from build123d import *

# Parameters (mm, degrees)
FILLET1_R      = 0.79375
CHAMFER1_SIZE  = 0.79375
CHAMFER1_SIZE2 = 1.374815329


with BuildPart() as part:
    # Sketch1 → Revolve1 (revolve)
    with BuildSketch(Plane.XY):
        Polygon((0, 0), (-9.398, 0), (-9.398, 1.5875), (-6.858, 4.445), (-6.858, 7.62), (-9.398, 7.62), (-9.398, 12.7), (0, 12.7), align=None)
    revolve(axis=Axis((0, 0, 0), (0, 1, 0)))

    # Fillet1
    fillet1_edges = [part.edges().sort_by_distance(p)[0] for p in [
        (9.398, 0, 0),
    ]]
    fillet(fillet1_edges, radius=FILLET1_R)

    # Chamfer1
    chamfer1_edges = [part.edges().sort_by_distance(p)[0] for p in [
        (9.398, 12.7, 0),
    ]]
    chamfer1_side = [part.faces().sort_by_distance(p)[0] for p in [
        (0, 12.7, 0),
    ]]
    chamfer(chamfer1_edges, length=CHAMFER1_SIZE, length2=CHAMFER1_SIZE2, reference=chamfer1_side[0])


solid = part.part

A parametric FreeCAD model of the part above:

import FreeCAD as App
import Part
import Sketcher

V = App.Vector
Q = App.Units.Quantity


def edges_at(feature, points):
    """Names of the edges that pass closest to the given points."""
    edges = feature.Shape.Edges
    near = lambda p: min(range(len(edges)), key=lambda i: edges[i].distToShape(Part.Vertex(*p))[0])
    return sorted({f"Edge{near(p) + 1}" for p in points})


def add_polygon(sketch, points):
    """Adds a closed chain of lines whose ends are joined by coincident constraints."""
    first, n = sketch.GeometryCount, len(points)
    for a, b in zip(points, points[1:] + points[:1]):
        sketch.addGeometry(Part.LineSegment(App.Vector(*a, 0), App.Vector(*b, 0)), False)
    for i in range(n):
        sketch.addConstraint(Sketcher.Constraint("Coincident", first + i, 2, first + (i + 1) % n, 1))

doc = App.newDocument("Part")
params = doc.addObject("Spreadsheet::Sheet", "Params")
for row, (alias, value) in enumerate([
    ("sketch1_width", "0.1 in"),
    ("sketch1_height", "0.5 in"),
    ("sketch1_height2", "0.2 in"),
    ("sketch1_width2", "0.37 in"),
    ("sketch1_height3", "0.125 in"),
    ("revolution_angle", "360 deg"),
    ("fillet_radius", "0.03125 in"),
    ("chamfer_size", "0.03125 in"),
    ("chamfer_size2", "1.374815 mm"),
], start=1):
    params.set(f"A{row}", alias)
    params.set(f"B{row}", "=" + value)
    params.setAlias(f"B{row}", alias)

body = doc.addObject("PartDesign::Body", "Body")

# Sketch on XY plane
sketch1 = body.newObject("Sketcher::SketchObject", "Sketch")
sketch1.AttachmentSupport = (doc.getObject("XY_Plane"), [""])
sketch1.MapMode = "FlatFace"
add_polygon(sketch1, [(-9.4, 0), (0, 0), (0, 12.7), (-9.4, 12.7), (-9.4, 7.6), (-6.9, 7.6), (-6.9, 4.4), (-9.4, 1.6)])  # lines 0-7
sketch1.addConstraint(Sketcher.Constraint("Horizontal", 0))
sketch1.addConstraint(Sketcher.Constraint("Vertical", 1))
sketch1.addConstraint(Sketcher.Constraint("Horizontal", 2))
sketch1.addConstraint(Sketcher.Constraint("Vertical", 3))
sketch1.addConstraint(Sketcher.Constraint("Horizontal", 4))
sketch1.addConstraint(Sketcher.Constraint("Vertical", 5))
sketch1.addConstraint(Sketcher.Constraint("Vertical", 7))
sketch1.addConstraint(Sketcher.Constraint("Coincident", 0, 2, -1, 1))
sketch1.addConstraint(Sketcher.Constraint("Vertical", 3, 2, 6, 2))
sketch1.addConstraint(Sketcher.Constraint("DistanceX", 4, 1, 4, 2, Q("0.1 in")))
sketch1.addConstraint(Sketcher.Constraint("DistanceY", 1, 1, 1, 2, Q("0.5 in")))
sketch1.addConstraint(Sketcher.Constraint("DistanceY", 3, 2, 3, 1, Q("0.2 in")))
sketch1.addConstraint(Sketcher.Constraint("DistanceX", 0, 1, 0, 2, Q("0.37 in")))
sketch1.addConstraint(Sketcher.Constraint("DistanceY", 5, 2, 5, 1, Q("0.125 in")))
sketch1.addConstraint(Sketcher.Constraint("DistanceY", 7, 2, 7, 1, Q("0.0625 in")))
sketch1.setExpression("Constraints[17]", "Params.sketch1_width")
sketch1.setExpression("Constraints[18]", "Params.sketch1_height")
sketch1.setExpression("Constraints[19]", "Params.sketch1_height2")
sketch1.setExpression("Constraints[20]", "Params.sketch1_width2")
sketch1.setExpression("Constraints[21]", "Params.sketch1_height3")
revolution = body.newObject("PartDesign::Revolution", "Revolution")
revolution.Profile = sketch1
revolution.ReferenceAxis = (sketch1, ["V_Axis"])
revolution.setExpression("Angle", "Params.revolution_angle")
doc.recompute()

fillet = body.newObject("PartDesign::Fillet", "Fillet")
fillet.Base = (revolution, edges_at(revolution, [(9.398, 0, 0)]))
fillet.setExpression("Radius", "Params.fillet_radius")
doc.recompute()

chamfer = body.newObject("PartDesign::Chamfer", "Chamfer")
chamfer.Base = (fillet, edges_at(fillet, [(9.398, 12.7, 0)]))
chamfer.ChamferType = "Two distances"
chamfer.setExpression("Size", "Params.chamfer_size")
chamfer.setExpression("Size2", "Params.chamfer_size2")
chamfer.FlipDirection = True

doc.recompute()
